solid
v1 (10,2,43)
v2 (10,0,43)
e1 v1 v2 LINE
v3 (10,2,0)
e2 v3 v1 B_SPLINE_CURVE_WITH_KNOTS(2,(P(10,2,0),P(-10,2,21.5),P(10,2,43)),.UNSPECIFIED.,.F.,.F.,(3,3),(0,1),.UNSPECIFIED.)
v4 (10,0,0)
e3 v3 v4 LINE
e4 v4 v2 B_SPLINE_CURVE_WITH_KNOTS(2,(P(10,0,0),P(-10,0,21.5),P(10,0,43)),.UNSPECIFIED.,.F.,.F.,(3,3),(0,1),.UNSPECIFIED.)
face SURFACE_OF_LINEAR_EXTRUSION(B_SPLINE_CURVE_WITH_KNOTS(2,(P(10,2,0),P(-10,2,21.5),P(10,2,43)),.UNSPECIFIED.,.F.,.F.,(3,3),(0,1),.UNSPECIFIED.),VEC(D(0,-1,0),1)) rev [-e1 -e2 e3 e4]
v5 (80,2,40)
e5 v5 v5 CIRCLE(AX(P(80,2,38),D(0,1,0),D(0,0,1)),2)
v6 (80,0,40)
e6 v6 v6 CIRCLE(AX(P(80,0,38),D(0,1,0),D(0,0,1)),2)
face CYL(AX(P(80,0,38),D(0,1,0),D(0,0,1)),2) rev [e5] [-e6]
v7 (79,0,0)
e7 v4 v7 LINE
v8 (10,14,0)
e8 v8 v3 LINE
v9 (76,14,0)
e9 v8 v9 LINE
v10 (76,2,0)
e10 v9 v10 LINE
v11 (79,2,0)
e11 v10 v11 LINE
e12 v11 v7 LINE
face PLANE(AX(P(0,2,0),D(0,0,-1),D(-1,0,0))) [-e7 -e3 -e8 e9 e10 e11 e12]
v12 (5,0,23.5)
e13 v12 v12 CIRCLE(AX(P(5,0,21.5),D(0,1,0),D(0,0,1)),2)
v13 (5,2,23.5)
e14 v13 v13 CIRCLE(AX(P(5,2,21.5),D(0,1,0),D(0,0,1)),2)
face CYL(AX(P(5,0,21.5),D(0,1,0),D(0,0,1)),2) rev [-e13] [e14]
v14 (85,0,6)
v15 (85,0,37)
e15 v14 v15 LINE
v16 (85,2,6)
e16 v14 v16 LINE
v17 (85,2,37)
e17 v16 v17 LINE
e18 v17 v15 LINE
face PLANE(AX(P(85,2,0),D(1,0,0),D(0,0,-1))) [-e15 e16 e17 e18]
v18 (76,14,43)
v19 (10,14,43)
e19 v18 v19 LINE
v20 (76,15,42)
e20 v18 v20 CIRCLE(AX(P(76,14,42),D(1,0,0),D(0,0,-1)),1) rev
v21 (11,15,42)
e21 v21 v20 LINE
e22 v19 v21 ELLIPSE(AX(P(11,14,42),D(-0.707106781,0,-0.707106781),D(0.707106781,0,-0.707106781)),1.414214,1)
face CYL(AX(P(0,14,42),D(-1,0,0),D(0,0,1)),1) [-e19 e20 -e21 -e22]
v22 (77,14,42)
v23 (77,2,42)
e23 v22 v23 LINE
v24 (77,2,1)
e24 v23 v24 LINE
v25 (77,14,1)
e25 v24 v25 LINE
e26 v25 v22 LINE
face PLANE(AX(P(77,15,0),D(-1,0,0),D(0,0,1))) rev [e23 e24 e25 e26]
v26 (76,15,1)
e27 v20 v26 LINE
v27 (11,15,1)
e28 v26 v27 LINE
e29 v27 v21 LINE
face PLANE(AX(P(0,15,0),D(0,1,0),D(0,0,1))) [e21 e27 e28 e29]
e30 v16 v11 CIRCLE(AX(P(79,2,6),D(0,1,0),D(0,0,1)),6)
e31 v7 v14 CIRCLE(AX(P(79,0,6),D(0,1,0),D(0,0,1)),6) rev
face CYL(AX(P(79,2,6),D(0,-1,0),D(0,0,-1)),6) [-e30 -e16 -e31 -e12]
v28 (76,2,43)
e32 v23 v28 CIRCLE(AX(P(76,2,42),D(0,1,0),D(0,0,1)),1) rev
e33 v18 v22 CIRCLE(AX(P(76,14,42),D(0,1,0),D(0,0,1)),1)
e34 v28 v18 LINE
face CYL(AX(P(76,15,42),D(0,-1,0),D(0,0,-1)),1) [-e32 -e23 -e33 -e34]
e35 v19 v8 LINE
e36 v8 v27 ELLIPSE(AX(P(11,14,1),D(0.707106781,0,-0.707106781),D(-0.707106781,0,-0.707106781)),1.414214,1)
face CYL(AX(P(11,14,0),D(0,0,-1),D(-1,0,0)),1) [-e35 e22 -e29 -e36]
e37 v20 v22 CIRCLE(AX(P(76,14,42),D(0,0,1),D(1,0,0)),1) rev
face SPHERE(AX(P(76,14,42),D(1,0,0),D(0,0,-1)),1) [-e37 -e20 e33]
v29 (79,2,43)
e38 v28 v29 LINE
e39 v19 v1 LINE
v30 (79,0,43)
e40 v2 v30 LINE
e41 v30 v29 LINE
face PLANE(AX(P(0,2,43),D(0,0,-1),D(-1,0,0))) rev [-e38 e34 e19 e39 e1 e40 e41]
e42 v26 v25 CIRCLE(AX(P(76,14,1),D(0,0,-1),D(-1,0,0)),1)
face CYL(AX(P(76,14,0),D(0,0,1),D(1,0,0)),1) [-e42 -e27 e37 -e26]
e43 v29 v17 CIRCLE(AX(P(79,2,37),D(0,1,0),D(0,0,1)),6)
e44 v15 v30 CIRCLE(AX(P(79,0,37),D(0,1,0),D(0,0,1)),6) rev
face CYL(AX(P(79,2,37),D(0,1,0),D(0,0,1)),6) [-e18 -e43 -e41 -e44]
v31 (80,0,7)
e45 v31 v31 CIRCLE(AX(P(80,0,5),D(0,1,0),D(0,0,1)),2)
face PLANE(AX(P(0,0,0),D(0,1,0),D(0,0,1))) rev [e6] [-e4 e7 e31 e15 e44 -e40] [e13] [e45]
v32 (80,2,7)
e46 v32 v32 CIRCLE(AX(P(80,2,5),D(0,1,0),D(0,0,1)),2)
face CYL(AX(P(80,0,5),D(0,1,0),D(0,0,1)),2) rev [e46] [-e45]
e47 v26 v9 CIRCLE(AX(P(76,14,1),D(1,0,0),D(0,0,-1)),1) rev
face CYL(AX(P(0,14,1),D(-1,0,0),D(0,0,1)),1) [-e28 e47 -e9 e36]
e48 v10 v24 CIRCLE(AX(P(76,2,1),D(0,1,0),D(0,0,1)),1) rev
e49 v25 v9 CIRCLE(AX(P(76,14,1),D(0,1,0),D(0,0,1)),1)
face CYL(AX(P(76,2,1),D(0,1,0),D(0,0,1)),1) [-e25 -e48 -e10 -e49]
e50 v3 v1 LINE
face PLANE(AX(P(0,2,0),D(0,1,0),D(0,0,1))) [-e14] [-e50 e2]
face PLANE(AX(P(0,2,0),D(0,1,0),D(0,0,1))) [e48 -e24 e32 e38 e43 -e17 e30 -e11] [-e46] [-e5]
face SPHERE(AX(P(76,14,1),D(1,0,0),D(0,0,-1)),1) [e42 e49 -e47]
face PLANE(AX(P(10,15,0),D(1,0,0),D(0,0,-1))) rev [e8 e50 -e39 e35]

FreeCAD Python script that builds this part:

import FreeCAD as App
import Part
import Sketcher


def edges_at(feature, points):
    """Names of the edges that pass closest to the given points."""
    edges = feature.Shape.Edges
    near = lambda p: min(range(len(edges)), key=lambda i: edges[i].distToShape(Part.Vertex(*p))[0])
    return sorted({f"Edge{near(p) + 1}" for p in points})

doc = App.newDocument("Part")
body = doc.addObject("PartDesign::Body", "Body")

# Sketch on XZ plane
sketch1 = body.newObject("Sketcher::SketchObject", "Sketch")
sketch1.AttachmentSupport = (doc.getObject("XZ_Plane"), [""])
sketch1.MapMode = "FlatFace"
sketch1.addGeometry([
    Part.LineSegment(App.Vector(85, 0, 0), App.Vector(10, 0, 0)),
    Part.BSplineCurve([App.Vector(10, 0, 0), App.Vector(-10, 21.5, 0), App.Vector(10, 43, 0)], [3, 3], [0, 1.000000001], False, 2, [1, 1, 1], False),
    Part.LineSegment(App.Vector(10, 43, 0), App.Vector(85, 43, 0)),
    Part.LineSegment(App.Vector(85, 43, 0), App.Vector(85, 0, 0)),
], False)
sketch1.addConstraint([
    Sketcher.Constraint("Block", 1),
    Sketcher.Constraint("Coincident", 0, 2, 1, 1),
    Sketcher.Constraint("Coincident", 1, 2, 2, 1),
    Sketcher.Constraint("Coincident", 2, 2, 3, 1),
    Sketcher.Constraint("Coincident", 3, 2, 0, 1),
    Sketcher.Constraint("Horizontal", 0),
    Sketcher.Constraint("Horizontal", 2),
    Sketcher.Constraint("Vertical", 3),
    Sketcher.Constraint("DistanceX", 0, 2, 0, 1, 75.0),
])
pad1 = body.newObject("PartDesign::Pad", "Pad")
pad1.Profile = sketch1
pad1.Length = 2
pad1.Reversed = True

# Sketch on XZ plane
sketch2 = body.newObject("Sketcher::SketchObject", "Sketch001")
sketch2.AttachmentSupport = (doc.getObject("XZ_Plane"), [""])
sketch2.MapMode = "FlatFace"
sketch2.AttachmentOffset = App.Placement(App.Vector(0, 0, -2), App.Rotation())
sketch2.addGeometry([
    Part.LineSegment(App.Vector(10, 0, 0), App.Vector(10, 43, 0)),
    Part.LineSegment(App.Vector(10, 43, 0), App.Vector(77, 43, 0)),
    Part.LineSegment(App.Vector(77, 43, 0), App.Vector(77, 0, 0)),
    Part.LineSegment(App.Vector(77, 0, 0), App.Vector(10, 0, 0)),
], False)
sketch2.addConstraint([
    Sketcher.Constraint("Coincident", 0, 2, 1, 1),
    Sketcher.Constraint("Coincident", 1, 2, 2, 1),
    Sketcher.Constraint("Coincident", 2, 2, 3, 1),
    Sketcher.Constraint("Coincident", 3, 2, 0, 1),
    Sketcher.Constraint("Vertical", 0),
    Sketcher.Constraint("Horizontal", 1),
    Sketcher.Constraint("Vertical", 2),
    Sketcher.Constraint("Horizontal", 3),
    Sketcher.Constraint("PointOnObject", 2, 2, -1),
    Sketcher.Constraint("DistanceX", 1, 1, 1, 2, 67.0),
    Sketcher.Constraint("DistanceY", 0, 1, 0, 2, 43.0),
    Sketcher.Constraint("DistanceX", -1, 1, 0, 2, 10.0),
])
pad2 = body.newObject("PartDesign::Pad", "Pad001")
pad2.Profile = sketch2
pad2.Length = 13
pad2.Reversed = True

# Sketch on XZ plane
sketch3 = body.newObject("Sketcher::SketchObject", "Sketch002")
sketch3.AttachmentSupport = (doc.getObject("XZ_Plane"), [""])
sketch3.MapMode = "FlatFace"
sketch3.AttachmentOffset = App.Placement(App.Vector(0, 0, -2), App.Rotation())
sketch3.addGeometry([
    Part.Circle(App.Vector(80, 5, 0), App.Vector(0, 0, 1), 2),
    Part.Circle(App.Vector(80, 38, 0), App.Vector(0, 0, 1), 2),
    Part.Circle(App.Vector(5, 21.5, 0), App.Vector(0, 0, 1), 2),
], False)
sketch3.addConstraint([
    Sketcher.Constraint("Equal", 0, 1),
    Sketcher.Constraint("Equal", 1, 2),
    Sketcher.Constraint("Vertical", 0, 3, 1, 3),
    Sketcher.Constraint("Diameter", 0, 4.0),
    Sketcher.Constraint("DistanceX", -1, 1, 0, 3, 80.0),
    Sketcher.Constraint("DistanceY", -1, 1, 0, 3, 5.0),
    Sketcher.Constraint("DistanceY", -1, 1, 1, 3, 38.0),
    Sketcher.Constraint("DistanceX", -1, 1, 2, 3, 5.0),
    Sketcher.Constraint("DistanceY", -1, 1, 2, 3, 21.5),
])
pocket1 = body.newObject("PartDesign::Pocket", "Pocket")
pocket1.Profile = sketch3
pocket1.Type = "ThroughAll"
pocket1.Reversed = True
doc.recompute()

fillet = body.newObject("PartDesign::Fillet", "Fillet")
fillet.Base = (pocket1, edges_at(pocket1, [(85, 1, 0), (85, 1, 43)]))
fillet.Radius = 6
doc.recompute()

fillet2 = body.newObject("PartDesign::Fillet", "Fillet001")
fillet2.Base = (fillet, edges_at(fillet, [
    (77, 8.5, 43),
    (77, 8.5, 0),
    (10, 15, 21.5),
    (43.5, 15, 43),
    (77, 15, 21.5),
    (43.5, 15, 0),
]))
fillet2.Radius = 1

doc.recompute()
